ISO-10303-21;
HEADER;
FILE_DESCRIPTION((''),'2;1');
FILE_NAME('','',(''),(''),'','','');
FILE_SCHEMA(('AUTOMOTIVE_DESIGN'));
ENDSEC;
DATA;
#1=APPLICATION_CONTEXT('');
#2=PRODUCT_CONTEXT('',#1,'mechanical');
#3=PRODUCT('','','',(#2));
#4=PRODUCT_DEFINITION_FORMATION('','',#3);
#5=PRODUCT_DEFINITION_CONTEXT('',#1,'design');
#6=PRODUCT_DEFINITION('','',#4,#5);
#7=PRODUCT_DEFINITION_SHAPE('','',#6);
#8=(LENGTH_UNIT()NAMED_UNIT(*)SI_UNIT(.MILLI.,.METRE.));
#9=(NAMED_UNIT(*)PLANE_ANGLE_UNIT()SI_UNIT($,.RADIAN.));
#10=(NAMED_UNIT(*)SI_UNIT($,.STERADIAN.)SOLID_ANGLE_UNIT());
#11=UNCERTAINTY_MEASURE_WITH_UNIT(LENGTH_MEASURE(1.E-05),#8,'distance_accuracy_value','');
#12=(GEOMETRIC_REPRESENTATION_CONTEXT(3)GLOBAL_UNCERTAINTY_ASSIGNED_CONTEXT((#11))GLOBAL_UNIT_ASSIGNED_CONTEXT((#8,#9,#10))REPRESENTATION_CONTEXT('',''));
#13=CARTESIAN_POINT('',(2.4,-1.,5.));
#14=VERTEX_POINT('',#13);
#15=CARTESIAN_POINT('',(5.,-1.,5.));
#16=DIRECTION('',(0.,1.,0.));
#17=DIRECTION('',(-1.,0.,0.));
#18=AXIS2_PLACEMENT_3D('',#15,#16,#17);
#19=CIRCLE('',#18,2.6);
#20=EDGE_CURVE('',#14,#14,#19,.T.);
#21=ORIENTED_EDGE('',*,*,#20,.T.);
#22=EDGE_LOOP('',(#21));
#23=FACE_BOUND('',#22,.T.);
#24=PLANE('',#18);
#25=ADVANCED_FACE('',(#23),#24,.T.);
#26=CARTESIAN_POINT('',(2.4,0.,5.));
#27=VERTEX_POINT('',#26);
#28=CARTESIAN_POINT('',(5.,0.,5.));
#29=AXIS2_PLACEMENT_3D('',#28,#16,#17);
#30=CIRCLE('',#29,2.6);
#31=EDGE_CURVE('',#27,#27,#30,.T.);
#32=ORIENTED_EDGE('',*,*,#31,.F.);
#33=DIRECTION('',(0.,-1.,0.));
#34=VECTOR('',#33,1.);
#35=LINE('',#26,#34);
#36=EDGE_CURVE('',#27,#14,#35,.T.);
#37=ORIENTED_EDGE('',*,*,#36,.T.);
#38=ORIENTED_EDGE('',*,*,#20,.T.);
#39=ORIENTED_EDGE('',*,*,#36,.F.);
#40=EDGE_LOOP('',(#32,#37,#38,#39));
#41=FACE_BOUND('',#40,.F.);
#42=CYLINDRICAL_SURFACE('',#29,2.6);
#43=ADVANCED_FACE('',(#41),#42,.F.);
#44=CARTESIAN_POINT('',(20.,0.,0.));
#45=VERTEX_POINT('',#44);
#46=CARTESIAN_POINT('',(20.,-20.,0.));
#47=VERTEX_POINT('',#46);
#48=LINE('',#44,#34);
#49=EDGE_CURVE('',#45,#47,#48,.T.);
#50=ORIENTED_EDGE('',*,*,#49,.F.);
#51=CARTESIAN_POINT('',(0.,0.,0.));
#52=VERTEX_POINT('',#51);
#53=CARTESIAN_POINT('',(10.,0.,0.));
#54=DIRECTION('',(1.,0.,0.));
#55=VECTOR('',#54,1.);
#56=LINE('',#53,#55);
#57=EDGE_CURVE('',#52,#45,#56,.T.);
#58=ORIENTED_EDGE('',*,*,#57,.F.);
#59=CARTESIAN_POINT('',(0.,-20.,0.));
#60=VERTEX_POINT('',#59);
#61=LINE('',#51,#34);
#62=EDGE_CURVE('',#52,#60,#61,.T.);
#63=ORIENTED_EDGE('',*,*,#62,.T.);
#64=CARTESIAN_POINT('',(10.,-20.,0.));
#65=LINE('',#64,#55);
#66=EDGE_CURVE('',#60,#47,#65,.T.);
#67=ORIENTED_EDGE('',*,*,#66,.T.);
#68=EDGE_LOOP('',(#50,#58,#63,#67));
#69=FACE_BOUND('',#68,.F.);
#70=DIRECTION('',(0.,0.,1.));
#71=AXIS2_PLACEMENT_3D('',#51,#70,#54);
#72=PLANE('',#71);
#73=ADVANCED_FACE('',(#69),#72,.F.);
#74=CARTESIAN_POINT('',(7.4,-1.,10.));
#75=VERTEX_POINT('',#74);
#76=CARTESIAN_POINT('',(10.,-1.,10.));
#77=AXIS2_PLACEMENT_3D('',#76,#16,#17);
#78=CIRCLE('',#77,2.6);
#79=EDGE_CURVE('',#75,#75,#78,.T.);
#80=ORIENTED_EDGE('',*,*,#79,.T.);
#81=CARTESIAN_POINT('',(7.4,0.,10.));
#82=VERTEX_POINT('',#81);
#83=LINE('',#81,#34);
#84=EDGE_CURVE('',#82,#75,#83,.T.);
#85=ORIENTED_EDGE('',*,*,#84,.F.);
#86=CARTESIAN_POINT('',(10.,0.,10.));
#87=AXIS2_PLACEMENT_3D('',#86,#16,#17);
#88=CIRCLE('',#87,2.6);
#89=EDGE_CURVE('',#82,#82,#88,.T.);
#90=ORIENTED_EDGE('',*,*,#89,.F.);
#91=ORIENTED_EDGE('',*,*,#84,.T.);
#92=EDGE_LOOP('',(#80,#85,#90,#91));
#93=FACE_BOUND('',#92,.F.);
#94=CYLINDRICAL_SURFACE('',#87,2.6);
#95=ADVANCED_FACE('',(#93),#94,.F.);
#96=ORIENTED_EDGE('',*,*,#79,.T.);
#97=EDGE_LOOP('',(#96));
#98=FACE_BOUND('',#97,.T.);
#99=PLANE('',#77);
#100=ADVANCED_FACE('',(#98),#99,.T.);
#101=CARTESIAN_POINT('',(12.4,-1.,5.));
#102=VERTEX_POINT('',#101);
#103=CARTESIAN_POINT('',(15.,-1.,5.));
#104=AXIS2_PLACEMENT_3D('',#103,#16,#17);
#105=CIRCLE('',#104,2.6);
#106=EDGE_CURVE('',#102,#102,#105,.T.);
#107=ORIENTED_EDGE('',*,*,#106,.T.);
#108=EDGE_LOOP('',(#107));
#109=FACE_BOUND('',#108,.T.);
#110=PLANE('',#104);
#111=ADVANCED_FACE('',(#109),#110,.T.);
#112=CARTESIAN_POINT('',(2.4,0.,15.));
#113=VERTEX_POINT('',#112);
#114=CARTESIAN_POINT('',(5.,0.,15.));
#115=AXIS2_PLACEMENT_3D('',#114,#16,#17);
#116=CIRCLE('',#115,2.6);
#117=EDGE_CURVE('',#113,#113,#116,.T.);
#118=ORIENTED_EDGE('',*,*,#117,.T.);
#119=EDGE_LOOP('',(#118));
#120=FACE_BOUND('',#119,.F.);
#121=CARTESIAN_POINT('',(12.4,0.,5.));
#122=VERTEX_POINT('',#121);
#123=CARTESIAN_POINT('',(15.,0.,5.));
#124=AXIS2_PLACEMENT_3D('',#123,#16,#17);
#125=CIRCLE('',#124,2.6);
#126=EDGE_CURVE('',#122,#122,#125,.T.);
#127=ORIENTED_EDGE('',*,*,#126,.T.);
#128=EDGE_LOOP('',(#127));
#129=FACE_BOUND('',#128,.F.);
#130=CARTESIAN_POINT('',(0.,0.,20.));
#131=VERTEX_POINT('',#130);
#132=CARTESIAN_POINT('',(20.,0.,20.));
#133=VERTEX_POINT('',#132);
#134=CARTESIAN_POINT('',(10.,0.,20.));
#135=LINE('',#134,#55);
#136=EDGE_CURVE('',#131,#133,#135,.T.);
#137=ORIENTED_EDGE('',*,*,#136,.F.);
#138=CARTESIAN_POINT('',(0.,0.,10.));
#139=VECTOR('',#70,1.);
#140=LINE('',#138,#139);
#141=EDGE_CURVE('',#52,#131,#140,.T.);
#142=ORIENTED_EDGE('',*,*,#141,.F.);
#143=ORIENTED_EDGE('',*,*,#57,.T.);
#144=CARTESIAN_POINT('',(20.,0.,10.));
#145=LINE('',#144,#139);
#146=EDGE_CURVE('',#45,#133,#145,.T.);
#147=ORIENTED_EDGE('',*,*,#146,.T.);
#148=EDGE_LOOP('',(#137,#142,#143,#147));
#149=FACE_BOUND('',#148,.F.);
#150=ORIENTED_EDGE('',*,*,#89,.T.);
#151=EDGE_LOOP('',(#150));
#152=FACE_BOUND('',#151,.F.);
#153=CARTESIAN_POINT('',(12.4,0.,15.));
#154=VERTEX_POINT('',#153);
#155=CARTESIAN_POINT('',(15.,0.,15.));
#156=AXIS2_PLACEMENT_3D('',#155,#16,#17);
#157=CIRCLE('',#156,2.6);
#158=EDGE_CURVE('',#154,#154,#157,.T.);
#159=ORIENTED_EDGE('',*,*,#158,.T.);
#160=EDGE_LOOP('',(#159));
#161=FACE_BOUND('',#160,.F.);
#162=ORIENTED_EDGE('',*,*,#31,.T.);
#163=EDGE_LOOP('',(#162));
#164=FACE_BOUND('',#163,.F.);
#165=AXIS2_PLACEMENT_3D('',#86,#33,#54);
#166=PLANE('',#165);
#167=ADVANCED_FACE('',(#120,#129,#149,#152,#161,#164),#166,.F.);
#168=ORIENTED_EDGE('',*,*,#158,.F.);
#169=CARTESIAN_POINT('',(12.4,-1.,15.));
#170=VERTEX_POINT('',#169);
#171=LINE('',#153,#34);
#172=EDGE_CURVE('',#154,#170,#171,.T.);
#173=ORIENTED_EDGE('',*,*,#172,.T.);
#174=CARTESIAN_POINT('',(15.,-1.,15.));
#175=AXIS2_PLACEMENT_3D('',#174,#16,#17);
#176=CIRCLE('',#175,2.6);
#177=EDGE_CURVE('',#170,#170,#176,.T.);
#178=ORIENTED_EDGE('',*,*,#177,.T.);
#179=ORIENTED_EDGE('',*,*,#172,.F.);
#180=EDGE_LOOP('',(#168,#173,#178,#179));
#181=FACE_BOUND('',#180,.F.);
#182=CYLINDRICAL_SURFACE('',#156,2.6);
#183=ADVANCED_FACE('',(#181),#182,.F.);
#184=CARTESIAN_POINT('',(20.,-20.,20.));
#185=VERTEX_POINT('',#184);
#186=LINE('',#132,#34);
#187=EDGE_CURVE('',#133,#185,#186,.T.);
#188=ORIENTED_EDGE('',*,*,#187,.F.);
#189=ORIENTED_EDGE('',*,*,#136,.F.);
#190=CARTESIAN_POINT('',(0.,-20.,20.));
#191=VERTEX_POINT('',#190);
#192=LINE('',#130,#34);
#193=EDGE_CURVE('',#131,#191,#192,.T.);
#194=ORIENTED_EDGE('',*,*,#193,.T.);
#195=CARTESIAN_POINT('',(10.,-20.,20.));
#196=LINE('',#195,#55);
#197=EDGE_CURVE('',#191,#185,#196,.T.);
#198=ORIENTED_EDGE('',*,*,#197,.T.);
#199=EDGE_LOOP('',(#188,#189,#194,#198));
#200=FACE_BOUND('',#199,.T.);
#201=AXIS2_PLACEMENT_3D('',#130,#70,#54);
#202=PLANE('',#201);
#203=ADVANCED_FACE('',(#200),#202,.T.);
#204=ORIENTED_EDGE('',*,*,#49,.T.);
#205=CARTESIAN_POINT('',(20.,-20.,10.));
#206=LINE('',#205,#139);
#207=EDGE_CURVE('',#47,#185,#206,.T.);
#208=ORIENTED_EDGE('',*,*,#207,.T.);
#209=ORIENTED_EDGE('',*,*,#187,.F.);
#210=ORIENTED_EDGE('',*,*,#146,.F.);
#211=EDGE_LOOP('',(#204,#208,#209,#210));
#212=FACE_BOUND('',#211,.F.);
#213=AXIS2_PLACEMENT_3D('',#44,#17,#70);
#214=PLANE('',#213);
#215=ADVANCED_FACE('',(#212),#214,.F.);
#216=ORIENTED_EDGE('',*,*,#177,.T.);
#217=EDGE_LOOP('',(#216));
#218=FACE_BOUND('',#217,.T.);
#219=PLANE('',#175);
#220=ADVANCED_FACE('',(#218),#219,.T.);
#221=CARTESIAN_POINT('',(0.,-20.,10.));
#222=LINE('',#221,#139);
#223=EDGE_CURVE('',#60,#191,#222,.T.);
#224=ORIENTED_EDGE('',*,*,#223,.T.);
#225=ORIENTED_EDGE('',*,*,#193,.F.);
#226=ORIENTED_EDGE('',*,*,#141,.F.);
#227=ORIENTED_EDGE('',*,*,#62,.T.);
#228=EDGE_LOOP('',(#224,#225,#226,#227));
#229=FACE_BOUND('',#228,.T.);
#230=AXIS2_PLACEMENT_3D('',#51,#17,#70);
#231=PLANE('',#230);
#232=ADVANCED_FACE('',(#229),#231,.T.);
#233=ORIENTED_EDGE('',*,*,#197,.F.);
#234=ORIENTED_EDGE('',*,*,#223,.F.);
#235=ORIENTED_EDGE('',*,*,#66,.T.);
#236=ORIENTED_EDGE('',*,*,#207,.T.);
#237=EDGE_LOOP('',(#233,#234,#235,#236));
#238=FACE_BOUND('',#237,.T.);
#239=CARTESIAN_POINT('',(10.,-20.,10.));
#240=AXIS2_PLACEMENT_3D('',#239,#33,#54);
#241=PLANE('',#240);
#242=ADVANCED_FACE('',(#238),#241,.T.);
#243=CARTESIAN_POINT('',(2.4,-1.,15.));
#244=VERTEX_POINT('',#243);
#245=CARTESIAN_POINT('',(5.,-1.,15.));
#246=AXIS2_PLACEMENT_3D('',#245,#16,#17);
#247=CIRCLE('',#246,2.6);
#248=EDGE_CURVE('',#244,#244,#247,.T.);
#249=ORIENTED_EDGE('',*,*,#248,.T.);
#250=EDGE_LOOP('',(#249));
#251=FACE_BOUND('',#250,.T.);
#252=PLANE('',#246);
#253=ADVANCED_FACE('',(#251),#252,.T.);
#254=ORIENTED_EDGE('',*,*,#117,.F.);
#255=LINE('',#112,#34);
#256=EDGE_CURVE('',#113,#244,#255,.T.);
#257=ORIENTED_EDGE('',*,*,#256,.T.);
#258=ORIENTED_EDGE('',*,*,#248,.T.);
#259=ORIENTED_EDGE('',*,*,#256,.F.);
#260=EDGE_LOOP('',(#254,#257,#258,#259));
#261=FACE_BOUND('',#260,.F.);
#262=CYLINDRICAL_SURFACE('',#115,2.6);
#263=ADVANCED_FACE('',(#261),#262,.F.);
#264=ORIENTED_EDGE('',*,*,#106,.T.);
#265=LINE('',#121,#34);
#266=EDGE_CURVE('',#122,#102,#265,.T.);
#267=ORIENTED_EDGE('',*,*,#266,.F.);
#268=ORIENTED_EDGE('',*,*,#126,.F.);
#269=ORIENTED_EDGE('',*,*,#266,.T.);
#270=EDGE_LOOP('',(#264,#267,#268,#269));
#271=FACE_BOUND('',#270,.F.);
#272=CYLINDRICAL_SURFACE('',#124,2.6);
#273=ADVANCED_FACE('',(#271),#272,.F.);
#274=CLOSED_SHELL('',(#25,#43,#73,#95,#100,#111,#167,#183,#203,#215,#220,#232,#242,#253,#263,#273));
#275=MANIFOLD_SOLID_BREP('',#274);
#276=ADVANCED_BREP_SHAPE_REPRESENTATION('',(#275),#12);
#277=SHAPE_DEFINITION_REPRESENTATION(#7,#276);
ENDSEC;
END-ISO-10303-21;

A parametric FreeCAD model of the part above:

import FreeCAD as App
import Part
import Sketcher
from FreeCAD import Vector
Q = App.Units.Quantity

doc = App.newDocument("Part")
body = doc.addObject("PartDesign::Body", "Body")

sketch1 = doc.addObject("Sketcher::SketchObject", "Sketch")
body.addObject(sketch1)
sketch1.AttachmentSupport = (doc.XZ_Plane, [""])
sketch1.MapMode = "FlatFace"
sketch1.addGeometry(Part.LineSegment(Vector(0, 20, 0), Vector(0, 0, 0)), False)
sketch1.addGeometry(Part.LineSegment(Vector(0, 0, 0), Vector(20, 0, 0)), False)
sketch1.addGeometry(Part.LineSegment(Vector(20, 0, 0), Vector(20, 20, 0)), False)
sketch1.addGeometry(Part.LineSegment(Vector(20, 20, 0), Vector(0, 20, 0)), False)
sketch1.addConstraint(Sketcher.Constraint("Coincident", 0, 2, 1, 1))
sketch1.addConstraint(Sketcher.Constraint("Coincident", 1, 2, 2, 1))
sketch1.addConstraint(Sketcher.Constraint("Coincident", 2, 2, 3, 1))
sketch1.addConstraint(Sketcher.Constraint("Coincident", 3, 2, 0, 1))
sketch1.addConstraint(Sketcher.Constraint("Vertical", 0))
sketch1.addConstraint(Sketcher.Constraint("Horizontal", 1))
sketch1.addConstraint(Sketcher.Constraint("Vertical", 2))
sketch1.addConstraint(Sketcher.Constraint("Horizontal", 3))
sketch1.addConstraint(Sketcher.Constraint("Coincident", 0, 2, -1, 1))
sketch1.addConstraint(Sketcher.Constraint("Equal", 3, 0))
sketch1.addConstraint(Sketcher.Constraint("DistanceX", 1, 1, 1, 2, Q("20 mm")))
pad1 = doc.addObject("PartDesign::Pad", "Pad")
body.addObject(pad1)
pad1.Profile = sketch1
pad1.Length = 20

sketch2 = doc.addObject("Sketcher::SketchObject", "Sketch001")
body.addObject(sketch2)
sketch2.AttachmentSupport = (doc.XZ_Plane, [""])
sketch2.MapMode = "FlatFace"
sketch2.addGeometry(Part.Circle(Vector(10, 10, 0), Vector(0, 0, 1), 2.6), False)
sketch2.addGeometry(Part.Circle(Vector(15, 15, 0), Vector(0, 0, 1), 2.6), False)
sketch2.addGeometry(Part.Circle(Vector(5, 15, 0), Vector(0, 0, 1), 2.6), False)
sketch2.addGeometry(Part.Circle(Vector(15, 5, 0), Vector(0, 0, 1), 2.6), False)
sketch2.addGeometry(Part.Circle(Vector(5, 5, 0), Vector(0, 0, 1), 2.6), False)
sketch2.addConstraint(Sketcher.Constraint("Equal", 0, 1))
sketch2.addConstraint(Sketcher.Constraint("Equal", 1, 2))
sketch2.addConstraint(Sketcher.Constraint("Equal", 2, 3))
sketch2.addConstraint(Sketcher.Constraint("Equal", 3, 4))
sketch2.addConstraint(Sketcher.Constraint("Horizontal", 1, 3, 2, 3))
sketch2.addConstraint(Sketcher.Constraint("Horizontal", 3, 3, 4, 3))
sketch2.addConstraint(Sketcher.Constraint("Vertical", 1, 3, 3, 3))
sketch2.addConstraint(Sketcher.Constraint("Vertical", 2, 3, 4, 3))
sketch2.addConstraint(Sketcher.Constraint("Diameter", 0, Q("5.2 mm")))
sketch2.addConstraint(Sketcher.Constraint("DistanceX", -1, 1, 0, 3, Q("10 mm")))
sketch2.addConstraint(Sketcher.Constraint("DistanceY", -1, 1, 0, 3, Q("10 mm")))
sketch2.addConstraint(Sketcher.Constraint("DistanceX", -1, 1, 1, 3, Q("15 mm")))
sketch2.addConstraint(Sketcher.Constraint("DistanceY", -1, 1, 1, 3, Q("15 mm")))
sketch2.addConstraint(Sketcher.Constraint("DistanceX", -1, 1, 2, 3, Q("5 mm")))
sketch2.addConstraint(Sketcher.Constraint("DistanceY", -1, 1, 3, 3, Q("5 mm")))
pocket1 = doc.addObject("PartDesign::Pocket", "Pocket")
body.addObject(pocket1)
pocket1.Profile = sketch2
pocket1.Length = 1
pocket1.Reversed = True

doc.recompute()
